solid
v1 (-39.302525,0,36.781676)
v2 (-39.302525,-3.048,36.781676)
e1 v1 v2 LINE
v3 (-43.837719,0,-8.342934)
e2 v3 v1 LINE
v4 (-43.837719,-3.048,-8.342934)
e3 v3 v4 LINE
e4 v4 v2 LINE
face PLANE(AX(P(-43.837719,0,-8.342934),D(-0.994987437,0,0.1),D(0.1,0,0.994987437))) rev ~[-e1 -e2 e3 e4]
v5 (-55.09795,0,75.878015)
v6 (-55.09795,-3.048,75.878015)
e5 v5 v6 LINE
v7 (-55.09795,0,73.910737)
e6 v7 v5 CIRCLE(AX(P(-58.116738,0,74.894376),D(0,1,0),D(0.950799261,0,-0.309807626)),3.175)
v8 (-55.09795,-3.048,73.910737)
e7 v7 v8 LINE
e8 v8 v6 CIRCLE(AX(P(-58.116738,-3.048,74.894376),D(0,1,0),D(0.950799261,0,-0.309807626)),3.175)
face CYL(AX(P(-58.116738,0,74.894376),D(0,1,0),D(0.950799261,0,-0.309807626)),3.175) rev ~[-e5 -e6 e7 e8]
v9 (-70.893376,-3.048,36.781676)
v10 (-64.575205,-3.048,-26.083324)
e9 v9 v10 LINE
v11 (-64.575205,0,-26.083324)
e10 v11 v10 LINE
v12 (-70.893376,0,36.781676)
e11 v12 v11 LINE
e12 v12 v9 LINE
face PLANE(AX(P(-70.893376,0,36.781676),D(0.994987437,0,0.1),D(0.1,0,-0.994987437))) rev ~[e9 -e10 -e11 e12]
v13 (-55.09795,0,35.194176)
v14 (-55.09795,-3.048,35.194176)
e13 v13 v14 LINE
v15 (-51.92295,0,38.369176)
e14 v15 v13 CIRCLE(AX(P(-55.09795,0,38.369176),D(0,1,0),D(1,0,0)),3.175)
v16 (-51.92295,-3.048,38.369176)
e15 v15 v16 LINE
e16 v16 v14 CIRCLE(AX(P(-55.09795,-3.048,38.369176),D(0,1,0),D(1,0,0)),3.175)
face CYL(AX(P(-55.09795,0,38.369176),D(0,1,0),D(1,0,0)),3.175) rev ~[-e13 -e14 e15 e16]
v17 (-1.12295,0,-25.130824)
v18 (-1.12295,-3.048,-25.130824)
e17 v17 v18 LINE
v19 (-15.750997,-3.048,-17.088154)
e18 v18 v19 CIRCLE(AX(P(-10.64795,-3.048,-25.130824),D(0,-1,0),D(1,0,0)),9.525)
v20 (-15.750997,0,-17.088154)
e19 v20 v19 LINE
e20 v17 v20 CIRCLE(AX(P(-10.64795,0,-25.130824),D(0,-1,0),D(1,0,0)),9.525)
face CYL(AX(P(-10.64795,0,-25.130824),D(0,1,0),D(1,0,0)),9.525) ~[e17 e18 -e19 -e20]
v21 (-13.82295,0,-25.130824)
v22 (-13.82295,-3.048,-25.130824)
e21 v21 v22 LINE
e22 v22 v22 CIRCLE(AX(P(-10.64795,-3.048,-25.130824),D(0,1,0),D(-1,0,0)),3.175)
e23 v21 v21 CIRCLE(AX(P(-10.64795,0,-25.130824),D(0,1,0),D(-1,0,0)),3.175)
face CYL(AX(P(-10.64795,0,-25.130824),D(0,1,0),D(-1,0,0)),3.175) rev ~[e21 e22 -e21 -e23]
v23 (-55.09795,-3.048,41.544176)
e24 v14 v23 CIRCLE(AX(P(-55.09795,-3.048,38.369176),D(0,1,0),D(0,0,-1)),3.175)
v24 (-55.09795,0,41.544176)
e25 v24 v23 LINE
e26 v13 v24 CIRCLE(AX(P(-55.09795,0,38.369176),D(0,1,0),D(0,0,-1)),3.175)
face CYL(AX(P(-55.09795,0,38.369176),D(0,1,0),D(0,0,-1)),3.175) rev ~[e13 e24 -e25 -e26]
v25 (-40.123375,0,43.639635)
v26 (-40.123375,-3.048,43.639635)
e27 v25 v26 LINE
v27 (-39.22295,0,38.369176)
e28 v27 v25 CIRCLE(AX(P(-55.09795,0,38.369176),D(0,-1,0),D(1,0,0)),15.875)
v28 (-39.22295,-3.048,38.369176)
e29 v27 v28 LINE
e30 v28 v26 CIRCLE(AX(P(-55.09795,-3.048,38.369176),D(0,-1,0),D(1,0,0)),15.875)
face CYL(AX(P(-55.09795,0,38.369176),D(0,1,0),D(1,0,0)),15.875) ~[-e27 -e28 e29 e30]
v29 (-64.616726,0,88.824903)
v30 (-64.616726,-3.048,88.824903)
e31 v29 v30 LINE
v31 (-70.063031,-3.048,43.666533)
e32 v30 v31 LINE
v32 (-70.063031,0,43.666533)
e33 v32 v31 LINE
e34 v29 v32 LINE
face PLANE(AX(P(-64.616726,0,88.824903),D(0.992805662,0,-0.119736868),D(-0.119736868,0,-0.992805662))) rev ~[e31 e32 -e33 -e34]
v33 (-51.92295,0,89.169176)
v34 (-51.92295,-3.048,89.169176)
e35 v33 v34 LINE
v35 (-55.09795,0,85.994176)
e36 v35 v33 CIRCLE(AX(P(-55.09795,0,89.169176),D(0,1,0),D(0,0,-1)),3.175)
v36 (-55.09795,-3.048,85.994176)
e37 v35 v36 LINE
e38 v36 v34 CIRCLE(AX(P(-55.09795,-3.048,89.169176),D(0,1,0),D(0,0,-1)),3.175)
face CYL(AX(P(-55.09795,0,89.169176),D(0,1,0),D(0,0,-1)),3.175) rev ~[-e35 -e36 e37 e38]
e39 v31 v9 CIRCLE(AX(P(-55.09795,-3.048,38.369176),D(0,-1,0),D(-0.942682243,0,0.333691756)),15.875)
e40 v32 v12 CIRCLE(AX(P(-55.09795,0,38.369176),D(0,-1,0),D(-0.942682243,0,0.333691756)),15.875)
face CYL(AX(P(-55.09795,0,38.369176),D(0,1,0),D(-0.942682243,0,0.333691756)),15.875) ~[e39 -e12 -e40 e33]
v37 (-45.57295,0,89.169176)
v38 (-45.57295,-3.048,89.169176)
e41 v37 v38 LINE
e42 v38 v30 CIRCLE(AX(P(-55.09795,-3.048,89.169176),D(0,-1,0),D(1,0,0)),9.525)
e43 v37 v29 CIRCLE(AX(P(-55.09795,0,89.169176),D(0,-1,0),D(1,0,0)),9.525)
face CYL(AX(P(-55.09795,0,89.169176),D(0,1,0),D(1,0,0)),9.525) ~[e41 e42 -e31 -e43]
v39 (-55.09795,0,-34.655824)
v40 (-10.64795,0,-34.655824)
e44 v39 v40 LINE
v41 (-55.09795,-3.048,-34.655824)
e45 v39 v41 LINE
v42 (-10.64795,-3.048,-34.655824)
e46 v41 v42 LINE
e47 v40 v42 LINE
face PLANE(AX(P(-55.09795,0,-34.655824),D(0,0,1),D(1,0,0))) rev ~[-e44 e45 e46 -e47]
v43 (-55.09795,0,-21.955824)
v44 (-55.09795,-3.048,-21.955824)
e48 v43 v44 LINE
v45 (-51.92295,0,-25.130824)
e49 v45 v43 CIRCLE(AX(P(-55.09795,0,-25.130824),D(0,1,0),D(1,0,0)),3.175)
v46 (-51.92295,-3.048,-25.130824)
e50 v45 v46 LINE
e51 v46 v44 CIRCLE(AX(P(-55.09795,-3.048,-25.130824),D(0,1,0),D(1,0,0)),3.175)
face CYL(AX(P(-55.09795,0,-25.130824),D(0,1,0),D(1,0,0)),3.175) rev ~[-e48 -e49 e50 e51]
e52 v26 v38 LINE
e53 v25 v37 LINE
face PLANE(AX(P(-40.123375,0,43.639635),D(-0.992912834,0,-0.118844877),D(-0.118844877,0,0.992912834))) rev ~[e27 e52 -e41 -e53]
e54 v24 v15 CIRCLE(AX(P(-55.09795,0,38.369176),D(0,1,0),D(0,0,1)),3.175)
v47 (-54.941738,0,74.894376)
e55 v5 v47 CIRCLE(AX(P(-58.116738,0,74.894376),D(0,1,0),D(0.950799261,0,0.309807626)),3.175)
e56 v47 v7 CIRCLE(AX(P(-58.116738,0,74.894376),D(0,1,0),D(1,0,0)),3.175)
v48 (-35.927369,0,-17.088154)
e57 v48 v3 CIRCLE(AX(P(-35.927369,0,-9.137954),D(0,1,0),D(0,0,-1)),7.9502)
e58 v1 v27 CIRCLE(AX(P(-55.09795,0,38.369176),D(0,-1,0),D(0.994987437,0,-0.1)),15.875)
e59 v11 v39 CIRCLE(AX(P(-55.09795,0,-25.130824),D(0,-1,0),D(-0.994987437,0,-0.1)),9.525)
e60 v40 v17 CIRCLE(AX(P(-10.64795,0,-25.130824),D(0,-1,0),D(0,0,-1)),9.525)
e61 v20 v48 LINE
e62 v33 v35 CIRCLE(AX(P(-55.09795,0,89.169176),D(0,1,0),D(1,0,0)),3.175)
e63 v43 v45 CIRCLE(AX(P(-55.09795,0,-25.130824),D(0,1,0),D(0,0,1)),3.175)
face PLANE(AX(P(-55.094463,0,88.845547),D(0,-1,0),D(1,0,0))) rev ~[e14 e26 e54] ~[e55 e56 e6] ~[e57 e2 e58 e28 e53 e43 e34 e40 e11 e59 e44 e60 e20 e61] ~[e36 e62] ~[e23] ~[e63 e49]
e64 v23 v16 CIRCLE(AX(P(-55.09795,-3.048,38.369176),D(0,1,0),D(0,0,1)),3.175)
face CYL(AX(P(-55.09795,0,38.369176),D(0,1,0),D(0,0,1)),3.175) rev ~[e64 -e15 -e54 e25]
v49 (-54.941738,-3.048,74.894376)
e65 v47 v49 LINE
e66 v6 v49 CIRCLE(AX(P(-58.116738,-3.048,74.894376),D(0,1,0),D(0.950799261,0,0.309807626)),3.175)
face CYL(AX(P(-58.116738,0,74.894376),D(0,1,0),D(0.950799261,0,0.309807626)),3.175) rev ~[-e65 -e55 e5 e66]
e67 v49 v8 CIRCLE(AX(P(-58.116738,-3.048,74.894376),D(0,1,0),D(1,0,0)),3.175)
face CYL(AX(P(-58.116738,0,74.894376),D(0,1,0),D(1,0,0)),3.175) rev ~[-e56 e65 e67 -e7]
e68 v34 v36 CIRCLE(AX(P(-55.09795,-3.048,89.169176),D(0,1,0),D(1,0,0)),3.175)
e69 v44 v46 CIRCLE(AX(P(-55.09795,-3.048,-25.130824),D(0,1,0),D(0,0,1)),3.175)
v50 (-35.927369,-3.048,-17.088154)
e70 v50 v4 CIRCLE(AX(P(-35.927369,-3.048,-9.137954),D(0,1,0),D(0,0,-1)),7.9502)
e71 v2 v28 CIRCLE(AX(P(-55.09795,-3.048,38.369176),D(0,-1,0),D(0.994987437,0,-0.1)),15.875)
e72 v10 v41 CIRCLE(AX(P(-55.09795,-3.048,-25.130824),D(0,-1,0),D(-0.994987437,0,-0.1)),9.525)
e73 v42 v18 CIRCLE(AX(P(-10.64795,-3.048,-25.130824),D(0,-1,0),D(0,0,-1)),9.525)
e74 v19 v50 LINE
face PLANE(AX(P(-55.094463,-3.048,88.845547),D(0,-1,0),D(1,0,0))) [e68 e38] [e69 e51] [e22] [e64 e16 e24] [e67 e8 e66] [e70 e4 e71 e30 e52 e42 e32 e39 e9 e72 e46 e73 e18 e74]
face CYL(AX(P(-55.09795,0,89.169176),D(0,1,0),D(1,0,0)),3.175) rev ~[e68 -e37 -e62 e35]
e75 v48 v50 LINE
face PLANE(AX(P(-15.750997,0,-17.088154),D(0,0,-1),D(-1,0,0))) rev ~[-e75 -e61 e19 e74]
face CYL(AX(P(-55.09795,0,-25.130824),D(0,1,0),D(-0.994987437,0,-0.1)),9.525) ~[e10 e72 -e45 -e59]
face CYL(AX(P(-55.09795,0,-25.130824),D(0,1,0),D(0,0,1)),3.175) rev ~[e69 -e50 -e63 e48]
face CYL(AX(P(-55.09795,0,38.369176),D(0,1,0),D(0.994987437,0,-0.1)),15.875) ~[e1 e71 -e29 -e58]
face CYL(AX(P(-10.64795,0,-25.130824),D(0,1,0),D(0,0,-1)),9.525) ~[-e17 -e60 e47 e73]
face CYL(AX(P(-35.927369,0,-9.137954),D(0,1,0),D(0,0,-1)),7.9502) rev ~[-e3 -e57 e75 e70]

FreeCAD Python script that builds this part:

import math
import FreeCAD as App
import Part
import Sketcher

V = App.Vector
Q = App.Units.Quantity

doc = App.newDocument("Part")
body = doc.addObject("PartDesign::Body", "Body")

# Sketch on XZ plane
sketch1 = body.newObject("Sketcher::SketchObject", "Sketch")
sketch1.AttachmentSupport = (doc.getObject("XZ_Plane"), [""])
sketch1.MapMode = "FlatFace"
sketch1.addGeometry([
    Part.ArcOfCircle(Part.Circle(V(-55.09795, -25.130824, 0), V(0, 0, 1), 9.525), math.radians(-174.26083), math.radians(-90)),  # 0
    Part.LineSegment(V(-55.09795, -34.655824, 0), V(-10.64795, -34.655824, 0)),  # 1
    Part.ArcOfCircle(Part.Circle(V(-10.64795, -25.130824, 0), V(0, 0, 1), 9.525), math.radians(-90), math.radians(0)),  # 2
    Part.ArcOfCircle(Part.Circle(V(-10.64795, -25.130824, 0), V(0, 0, 1), 9.525), math.radians(0), math.radians(122.394992)),  # 3
    Part.LineSegment(V(-15.750997, -17.088154, 0), V(-35.927369, -17.088154, 0)),  # 4
    Part.ArcOfCircle(Part.Circle(V(-35.927369, -9.137954, 0), V(0, 0, 1), 7.9502), math.radians(174.26083), math.radians(270)),  # 5
    Part.LineSegment(V(-43.837719, -8.342934, 0), V(-39.302525, 36.781676, 0)),  # 6
    Part.ArcOfCircle(Part.Circle(V(-55.09795, 38.369176, 0), V(0, 0, 1), 15.875), math.radians(-5.73917), math.radians(0)),  # 7
    Part.ArcOfCircle(Part.Circle(V(-55.09795, 38.369176, 0), V(0, 0, 1), 15.875), math.radians(0), math.radians(19.390054)),  # 8
    Part.LineSegment(V(-40.123375, 43.639635, 0), V(-45.57295, 89.169176, 0)),  # 9
    Part.ArcOfCircle(Part.Circle(V(-55.09795, 89.169176, 0), V(0, 0, 1), 9.525), math.radians(0), math.radians(182.071359)),  # 10
    Part.LineSegment(V(-64.616726, 88.824903, 0), V(-70.063031, 43.666533, 0)),  # 11
    Part.ArcOfCircle(Part.Circle(V(-55.09795, 38.369176, 0), V(0, 0, 1), 15.875), math.radians(160.506996), math.radians(185.73917)),  # 12
    Part.LineSegment(V(-70.893376, 36.781676, 0), V(-64.575205, -26.083324, 0)),  # 13
    Part.ArcOfCircle(Part.Circle(V(-55.09795, -25.130824, 0), V(0, 0, 1), 3.175), math.radians(90), math.radians(360)),  # 14
    Part.ArcOfCircle(Part.Circle(V(-55.09795, -25.130824, 0), V(0, 0, 1), 3.175), math.radians(0), math.radians(90)),  # 15
    Part.Circle(V(-10.64795, -25.130824, 0), V(0, 0, 1), 3.175),  # 16
    Part.ArcOfCircle(Part.Circle(V(-55.09795, 38.369176, 0), V(0, 0, 1), 3.175), math.radians(90), math.radians(270)),  # 17
    Part.ArcOfCircle(Part.Circle(V(-55.09795, 38.369176, 0), V(0, 0, 1), 3.175), math.radians(0), math.radians(90)),  # 18
    Part.ArcOfCircle(Part.Circle(V(-55.09795, 38.369176, 0), V(0, 0, 1), 3.175), math.radians(-90), math.radians(0)),  # 19
    Part.ArcOfCircle(Part.Circle(V(-58.116738, 74.894376, 0), V(0, 0, 1), 3.175), math.radians(0), math.radians(18.047638)),  # 20
    Part.ArcOfCircle(Part.Circle(V(-58.116738, 74.894376, 0), V(0, 0, 1), 3.175), math.radians(-18.047638), math.radians(0)),  # 21
    Part.ArcOfCircle(Part.Circle(V(-58.116738, 74.894376, 0), V(0, 0, 1), 3.175), math.radians(18.047638), math.radians(341.952362)),  # 22
    Part.ArcOfCircle(Part.Circle(V(-55.09795, 89.169176, 0), V(0, 0, 1), 3.175), math.radians(0), math.radians(270)),  # 23
    Part.ArcOfCircle(Part.Circle(V(-55.09795, 89.169176, 0), V(0, 0, 1), 3.175), math.radians(-90), math.radians(0)),  # 24
], False)
sketch1.addConstraint([
    Sketcher.Constraint("Tangent", 0, 2, 1, 1),
    Sketcher.Constraint("Tangent", 1, 2, 2, 1),
    Sketcher.Constraint("Tangent", 2, 2, 3, 1),
    Sketcher.Constraint("Coincident", 3, 2, 4, 1),
    Sketcher.Constraint("Tangent", 4, 2, 5, 2),
    Sketcher.Constraint("Tangent", 5, 1, 6, 1),
    Sketcher.Constraint("Tangent", 6, 2, 7, 1),
    Sketcher.Constraint("Tangent", 7, 2, 8, 1),
    Sketcher.Constraint("Coincident", 8, 2, 9, 1),
    Sketcher.Constraint("Coincident", 9, 2, 10, 1),
    Sketcher.Constraint("Coincident", 10, 2, 11, 1),
    Sketcher.Constraint("Coincident", 11, 2, 12, 1),
    Sketcher.Constraint("Tangent", 12, 2, 13, 1),
    Sketcher.Constraint("Tangent", 13, 2, 0, 1),
    Sketcher.Constraint("Tangent", 14, 1, 15, 2),
    Sketcher.Constraint("Coincident", 15, 1, 14, 2),
    Sketcher.Constraint("Tangent", 17, 1, 18, 2),
    Sketcher.Constraint("Tangent", 18, 1, 19, 2),
    Sketcher.Constraint("Tangent", 19, 1, 17, 2),
    Sketcher.Constraint("Tangent", 20, 1, 21, 2),
    Sketcher.Constraint("Tangent", 21, 1, 22, 2),
    Sketcher.Constraint("Tangent", 22, 1, 20, 2),
    Sketcher.Constraint("Tangent", 23, 1, 24, 2),
    Sketcher.Constraint("Coincident", 24, 1, 23, 2),
    Sketcher.Constraint("Horizontal", 1),
    Sketcher.Constraint("Horizontal", 4),
    Sketcher.Constraint("Coincident", 12, 3, 7, 3),
    Sketcher.Constraint("Coincident", 14, 3, 0, 3),
    Sketcher.Constraint("Coincident", 16, 3, 2, 3),
    Sketcher.Constraint("Coincident", 17, 3, 7, 3),
    Sketcher.Constraint("Coincident", 23, 3, 10, 3),
    Sketcher.Constraint("Equal", 0, 2),
    Sketcher.Constraint("Equal", 2, 3),
    Sketcher.Constraint("Equal", 7, 8),
    Sketcher.Constraint("Equal", 3, 10),
    Sketcher.Constraint("Equal", 8, 12),
    Sketcher.Constraint("Equal", 15, 16),
    Sketcher.Constraint("Equal", 16, 17),
    Sketcher.Constraint("Equal", 19, 20),
    Sketcher.Constraint("Equal", 22, 23),
    Sketcher.Constraint("Horizontal", 16, 3, 2, 2),
    Sketcher.Constraint("Horizontal", 19, 3, 7, 2),
    Sketcher.Constraint("Horizontal", 24, 3, 9, 2),
    Sketcher.Constraint("Horizontal", 6, 2, 12, 2),
    Sketcher.Constraint("Horizontal", 2, 2, 15, 1),
    Sketcher.Constraint("Horizontal", 7, 2, 18, 1),
    Sketcher.Constraint("Horizontal", 22, 3, 20, 1),
    Sketcher.Constraint("Horizontal", 9, 2, 23, 1),
    Sketcher.Constraint("Vertical", 0, 3, 7, 3),
    Sketcher.Constraint("Vertical", 8, 3, 10, 3),
    Sketcher.Constraint("Vertical", 0, 2, 14, 1),
    Sketcher.Constraint("Vertical", 14, 1, 17, 1),
    Sketcher.Constraint("Vertical", 17, 1, 19, 1),
    Sketcher.Constraint("Vertical", 19, 1, 21, 1),
    Sketcher.Constraint("Vertical", 21, 1, 22, 1),
    Sketcher.Constraint("Vertical", 22, 1, 24, 1),
    Sketcher.Constraint("Diameter", 16, Q("0.25 in")),
    Sketcher.Constraint("Radius", 0, Q("0.375 in")),
    Sketcher.Constraint("Radius", 5, Q("0.313 in")),
    Sketcher.Constraint("Radius", 7, Q("0.625 in")),
    Sketcher.Constraint("DistanceY", 7, 3, 10, 3, Q("2 in")),
    Sketcher.Constraint("DistanceX", 1, 1, 1, 2, Q("1.75 in")),
    Sketcher.Constraint("DistanceY", 0, 3, 7, 3, Q("2.5 in")),
    Sketcher.Constraint("DistanceY", 20, 3, 10, 3, Q("0.562 in")),
    Sketcher.Constraint("Distance", 6, 45.35194),
    Sketcher.Constraint("Distance", 9, 45.85452),
    Sketcher.Constraint("Distance", 11, 45.485609),
    Sketcher.Constraint("DistanceX", 0, 3, -1, 1, 55.09795),
    Sketcher.Constraint("DistanceX", 11, 2, -1, 1, 70.063031),
    Sketcher.Constraint("DistanceX", 10, 2, 20, 3, 6.499989),
    Sketcher.Constraint("DistanceY", 0, 3, -1, 1, 25.130824),
])
pad1 = body.newObject("PartDesign::Pad", "Pad")
pad1.Profile = sketch1
pad1.Length = Q("0.12 in")

doc.recompute()
